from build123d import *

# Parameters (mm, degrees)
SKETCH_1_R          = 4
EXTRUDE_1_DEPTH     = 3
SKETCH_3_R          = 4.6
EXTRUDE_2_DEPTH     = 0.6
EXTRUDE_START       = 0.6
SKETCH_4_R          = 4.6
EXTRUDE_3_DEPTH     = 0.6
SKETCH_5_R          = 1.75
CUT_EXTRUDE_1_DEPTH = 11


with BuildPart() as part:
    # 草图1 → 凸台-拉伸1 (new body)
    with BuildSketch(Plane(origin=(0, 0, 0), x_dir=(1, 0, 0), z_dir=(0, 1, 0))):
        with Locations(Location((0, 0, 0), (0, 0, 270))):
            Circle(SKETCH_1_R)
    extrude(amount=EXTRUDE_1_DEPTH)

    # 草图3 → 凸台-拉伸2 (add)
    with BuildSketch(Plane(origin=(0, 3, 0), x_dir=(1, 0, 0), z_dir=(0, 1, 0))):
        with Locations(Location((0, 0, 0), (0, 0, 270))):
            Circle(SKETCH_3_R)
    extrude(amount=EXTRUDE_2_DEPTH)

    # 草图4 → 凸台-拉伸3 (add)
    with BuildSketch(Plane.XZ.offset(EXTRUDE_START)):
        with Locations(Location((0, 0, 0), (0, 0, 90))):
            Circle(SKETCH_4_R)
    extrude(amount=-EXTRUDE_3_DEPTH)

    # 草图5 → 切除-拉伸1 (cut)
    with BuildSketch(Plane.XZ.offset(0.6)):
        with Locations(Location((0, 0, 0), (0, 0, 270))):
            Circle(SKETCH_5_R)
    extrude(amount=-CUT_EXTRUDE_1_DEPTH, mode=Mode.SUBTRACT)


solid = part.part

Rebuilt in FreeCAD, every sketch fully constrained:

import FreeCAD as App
import Part
import Sketcher

V = App.Vector
Q = App.Units.Quantity

doc = App.newDocument("Part")
params = doc.addObject("Spreadsheet::Sheet", "Params")
for row, (alias, value) in enumerate([
    ("sketch1_diameter", "8 mm"),
    ("pad1_length", "3 mm"),
    ("sketch2_diameter", "9.2 mm"),
    ("pad2_length", "0.6 mm"),
    ("sketch3_diameter", "9.2 mm"),
    ("pad3_length", "0.6 mm"),
    ("sketch4_diameter", "3.5 mm"),
    ("pocket1_length", "11 mm"),
], start=1):
    params.set(f"A{row}", alias)
    params.set(f"B{row}", "=" + value)
    params.setAlias(f"B{row}", alias)

body = doc.addObject("PartDesign::Body", "Body")

sketch1 = body.newObject("Sketcher::SketchObject", "Sketch")
sketch1.AttachmentSupport = (doc.getObject("XZ_Plane"), [""])
sketch1.MapMode = "FlatFace"
sketch1.addGeometry(Part.Circle(V(0, 0, 0), V(0, 0, 1), 4), False)
sketch1.addConstraint(Sketcher.Constraint("Coincident", 0, 3, -1, 1))
sketch1.addConstraint(Sketcher.Constraint("Diameter", 0, Q("8 mm")))
sketch1.setExpression("Constraints[1]", "Params.sketch1_diameter")
pad1 = body.newObject("PartDesign::Pad", "Pad")
pad1.Profile = sketch1
pad1.setExpression("Length", "Params.pad1_length")
pad1.Reversed = True

sketch2 = body.newObject("Sketcher::SketchObject", "Sketch001")
sketch2.AttachmentSupport = (doc.getObject("XZ_Plane"), [""])
sketch2.MapMode = "FlatFace"
sketch2.AttachmentOffset = App.Placement(V(0, 0, -3), App.Rotation())
sketch2.addGeometry(Part.Circle(V(0, 0, 0), V(0, 0, 1), 4.6), False)
sketch2.addConstraint(Sketcher.Constraint("Coincident", 0, 3, -1, 1))
sketch2.addConstraint(Sketcher.Constraint("Diameter", 0, Q("9.2 mm")))
sketch2.setExpression("Constraints[1]", "Params.sketch2_diameter")
pad2 = body.newObject("PartDesign::Pad", "Pad001")
pad2.Profile = sketch2
pad2.setExpression("Length", "Params.pad2_length")
pad2.Reversed = True

sketch3 = body.newObject("Sketcher::SketchObject", "Sketch002")
sketch3.AttachmentSupport = (doc.getObject("XZ_Plane"), [""])
sketch3.MapMode = "FlatFace"
sketch3.AttachmentOffset = App.Placement(V(0, 0, 0.6), App.Rotation())
sketch3.addGeometry(Part.Circle(V(0, 0, 0), V(0, 0, 1), 4.6), False)
sketch3.addConstraint(Sketcher.Constraint("Coincident", 0, 3, -1, 1))
sketch3.addConstraint(Sketcher.Constraint("Diameter", 0, Q("9.2 mm")))
sketch3.setExpression("Constraints[1]", "Params.sketch3_diameter")
pad3 = body.newObject("PartDesign::Pad", "Pad002")
pad3.Profile = sketch3
pad3.setExpression("Length", "Params.pad3_length")
pad3.Reversed = True

sketch4 = body.newObject("Sketcher::SketchObject", "Sketch003")
sketch4.AttachmentSupport = (doc.getObject("XZ_Plane"), [""])
sketch4.MapMode = "FlatFace"
sketch4.AttachmentOffset = App.Placement(V(0, 0, 0.6), App.Rotation())
sketch4.addGeometry(Part.Circle(V(0, 0, 0), V(0, 0, 1), 1.8), False)
sketch4.addConstraint(Sketcher.Constraint("Coincident", 0, 3, -1, 1))
sketch4.addConstraint(Sketcher.Constraint("Diameter", 0, Q("3.5 mm")))
sketch4.setExpression("Constraints[1]", "Params.sketch4_diameter")
pocket1 = body.newObject("PartDesign::Pocket", "Pocket")
pocket1.Profile = sketch4
pocket1.setExpression("Length", "Params.pocket1_length")

doc.recompute()
